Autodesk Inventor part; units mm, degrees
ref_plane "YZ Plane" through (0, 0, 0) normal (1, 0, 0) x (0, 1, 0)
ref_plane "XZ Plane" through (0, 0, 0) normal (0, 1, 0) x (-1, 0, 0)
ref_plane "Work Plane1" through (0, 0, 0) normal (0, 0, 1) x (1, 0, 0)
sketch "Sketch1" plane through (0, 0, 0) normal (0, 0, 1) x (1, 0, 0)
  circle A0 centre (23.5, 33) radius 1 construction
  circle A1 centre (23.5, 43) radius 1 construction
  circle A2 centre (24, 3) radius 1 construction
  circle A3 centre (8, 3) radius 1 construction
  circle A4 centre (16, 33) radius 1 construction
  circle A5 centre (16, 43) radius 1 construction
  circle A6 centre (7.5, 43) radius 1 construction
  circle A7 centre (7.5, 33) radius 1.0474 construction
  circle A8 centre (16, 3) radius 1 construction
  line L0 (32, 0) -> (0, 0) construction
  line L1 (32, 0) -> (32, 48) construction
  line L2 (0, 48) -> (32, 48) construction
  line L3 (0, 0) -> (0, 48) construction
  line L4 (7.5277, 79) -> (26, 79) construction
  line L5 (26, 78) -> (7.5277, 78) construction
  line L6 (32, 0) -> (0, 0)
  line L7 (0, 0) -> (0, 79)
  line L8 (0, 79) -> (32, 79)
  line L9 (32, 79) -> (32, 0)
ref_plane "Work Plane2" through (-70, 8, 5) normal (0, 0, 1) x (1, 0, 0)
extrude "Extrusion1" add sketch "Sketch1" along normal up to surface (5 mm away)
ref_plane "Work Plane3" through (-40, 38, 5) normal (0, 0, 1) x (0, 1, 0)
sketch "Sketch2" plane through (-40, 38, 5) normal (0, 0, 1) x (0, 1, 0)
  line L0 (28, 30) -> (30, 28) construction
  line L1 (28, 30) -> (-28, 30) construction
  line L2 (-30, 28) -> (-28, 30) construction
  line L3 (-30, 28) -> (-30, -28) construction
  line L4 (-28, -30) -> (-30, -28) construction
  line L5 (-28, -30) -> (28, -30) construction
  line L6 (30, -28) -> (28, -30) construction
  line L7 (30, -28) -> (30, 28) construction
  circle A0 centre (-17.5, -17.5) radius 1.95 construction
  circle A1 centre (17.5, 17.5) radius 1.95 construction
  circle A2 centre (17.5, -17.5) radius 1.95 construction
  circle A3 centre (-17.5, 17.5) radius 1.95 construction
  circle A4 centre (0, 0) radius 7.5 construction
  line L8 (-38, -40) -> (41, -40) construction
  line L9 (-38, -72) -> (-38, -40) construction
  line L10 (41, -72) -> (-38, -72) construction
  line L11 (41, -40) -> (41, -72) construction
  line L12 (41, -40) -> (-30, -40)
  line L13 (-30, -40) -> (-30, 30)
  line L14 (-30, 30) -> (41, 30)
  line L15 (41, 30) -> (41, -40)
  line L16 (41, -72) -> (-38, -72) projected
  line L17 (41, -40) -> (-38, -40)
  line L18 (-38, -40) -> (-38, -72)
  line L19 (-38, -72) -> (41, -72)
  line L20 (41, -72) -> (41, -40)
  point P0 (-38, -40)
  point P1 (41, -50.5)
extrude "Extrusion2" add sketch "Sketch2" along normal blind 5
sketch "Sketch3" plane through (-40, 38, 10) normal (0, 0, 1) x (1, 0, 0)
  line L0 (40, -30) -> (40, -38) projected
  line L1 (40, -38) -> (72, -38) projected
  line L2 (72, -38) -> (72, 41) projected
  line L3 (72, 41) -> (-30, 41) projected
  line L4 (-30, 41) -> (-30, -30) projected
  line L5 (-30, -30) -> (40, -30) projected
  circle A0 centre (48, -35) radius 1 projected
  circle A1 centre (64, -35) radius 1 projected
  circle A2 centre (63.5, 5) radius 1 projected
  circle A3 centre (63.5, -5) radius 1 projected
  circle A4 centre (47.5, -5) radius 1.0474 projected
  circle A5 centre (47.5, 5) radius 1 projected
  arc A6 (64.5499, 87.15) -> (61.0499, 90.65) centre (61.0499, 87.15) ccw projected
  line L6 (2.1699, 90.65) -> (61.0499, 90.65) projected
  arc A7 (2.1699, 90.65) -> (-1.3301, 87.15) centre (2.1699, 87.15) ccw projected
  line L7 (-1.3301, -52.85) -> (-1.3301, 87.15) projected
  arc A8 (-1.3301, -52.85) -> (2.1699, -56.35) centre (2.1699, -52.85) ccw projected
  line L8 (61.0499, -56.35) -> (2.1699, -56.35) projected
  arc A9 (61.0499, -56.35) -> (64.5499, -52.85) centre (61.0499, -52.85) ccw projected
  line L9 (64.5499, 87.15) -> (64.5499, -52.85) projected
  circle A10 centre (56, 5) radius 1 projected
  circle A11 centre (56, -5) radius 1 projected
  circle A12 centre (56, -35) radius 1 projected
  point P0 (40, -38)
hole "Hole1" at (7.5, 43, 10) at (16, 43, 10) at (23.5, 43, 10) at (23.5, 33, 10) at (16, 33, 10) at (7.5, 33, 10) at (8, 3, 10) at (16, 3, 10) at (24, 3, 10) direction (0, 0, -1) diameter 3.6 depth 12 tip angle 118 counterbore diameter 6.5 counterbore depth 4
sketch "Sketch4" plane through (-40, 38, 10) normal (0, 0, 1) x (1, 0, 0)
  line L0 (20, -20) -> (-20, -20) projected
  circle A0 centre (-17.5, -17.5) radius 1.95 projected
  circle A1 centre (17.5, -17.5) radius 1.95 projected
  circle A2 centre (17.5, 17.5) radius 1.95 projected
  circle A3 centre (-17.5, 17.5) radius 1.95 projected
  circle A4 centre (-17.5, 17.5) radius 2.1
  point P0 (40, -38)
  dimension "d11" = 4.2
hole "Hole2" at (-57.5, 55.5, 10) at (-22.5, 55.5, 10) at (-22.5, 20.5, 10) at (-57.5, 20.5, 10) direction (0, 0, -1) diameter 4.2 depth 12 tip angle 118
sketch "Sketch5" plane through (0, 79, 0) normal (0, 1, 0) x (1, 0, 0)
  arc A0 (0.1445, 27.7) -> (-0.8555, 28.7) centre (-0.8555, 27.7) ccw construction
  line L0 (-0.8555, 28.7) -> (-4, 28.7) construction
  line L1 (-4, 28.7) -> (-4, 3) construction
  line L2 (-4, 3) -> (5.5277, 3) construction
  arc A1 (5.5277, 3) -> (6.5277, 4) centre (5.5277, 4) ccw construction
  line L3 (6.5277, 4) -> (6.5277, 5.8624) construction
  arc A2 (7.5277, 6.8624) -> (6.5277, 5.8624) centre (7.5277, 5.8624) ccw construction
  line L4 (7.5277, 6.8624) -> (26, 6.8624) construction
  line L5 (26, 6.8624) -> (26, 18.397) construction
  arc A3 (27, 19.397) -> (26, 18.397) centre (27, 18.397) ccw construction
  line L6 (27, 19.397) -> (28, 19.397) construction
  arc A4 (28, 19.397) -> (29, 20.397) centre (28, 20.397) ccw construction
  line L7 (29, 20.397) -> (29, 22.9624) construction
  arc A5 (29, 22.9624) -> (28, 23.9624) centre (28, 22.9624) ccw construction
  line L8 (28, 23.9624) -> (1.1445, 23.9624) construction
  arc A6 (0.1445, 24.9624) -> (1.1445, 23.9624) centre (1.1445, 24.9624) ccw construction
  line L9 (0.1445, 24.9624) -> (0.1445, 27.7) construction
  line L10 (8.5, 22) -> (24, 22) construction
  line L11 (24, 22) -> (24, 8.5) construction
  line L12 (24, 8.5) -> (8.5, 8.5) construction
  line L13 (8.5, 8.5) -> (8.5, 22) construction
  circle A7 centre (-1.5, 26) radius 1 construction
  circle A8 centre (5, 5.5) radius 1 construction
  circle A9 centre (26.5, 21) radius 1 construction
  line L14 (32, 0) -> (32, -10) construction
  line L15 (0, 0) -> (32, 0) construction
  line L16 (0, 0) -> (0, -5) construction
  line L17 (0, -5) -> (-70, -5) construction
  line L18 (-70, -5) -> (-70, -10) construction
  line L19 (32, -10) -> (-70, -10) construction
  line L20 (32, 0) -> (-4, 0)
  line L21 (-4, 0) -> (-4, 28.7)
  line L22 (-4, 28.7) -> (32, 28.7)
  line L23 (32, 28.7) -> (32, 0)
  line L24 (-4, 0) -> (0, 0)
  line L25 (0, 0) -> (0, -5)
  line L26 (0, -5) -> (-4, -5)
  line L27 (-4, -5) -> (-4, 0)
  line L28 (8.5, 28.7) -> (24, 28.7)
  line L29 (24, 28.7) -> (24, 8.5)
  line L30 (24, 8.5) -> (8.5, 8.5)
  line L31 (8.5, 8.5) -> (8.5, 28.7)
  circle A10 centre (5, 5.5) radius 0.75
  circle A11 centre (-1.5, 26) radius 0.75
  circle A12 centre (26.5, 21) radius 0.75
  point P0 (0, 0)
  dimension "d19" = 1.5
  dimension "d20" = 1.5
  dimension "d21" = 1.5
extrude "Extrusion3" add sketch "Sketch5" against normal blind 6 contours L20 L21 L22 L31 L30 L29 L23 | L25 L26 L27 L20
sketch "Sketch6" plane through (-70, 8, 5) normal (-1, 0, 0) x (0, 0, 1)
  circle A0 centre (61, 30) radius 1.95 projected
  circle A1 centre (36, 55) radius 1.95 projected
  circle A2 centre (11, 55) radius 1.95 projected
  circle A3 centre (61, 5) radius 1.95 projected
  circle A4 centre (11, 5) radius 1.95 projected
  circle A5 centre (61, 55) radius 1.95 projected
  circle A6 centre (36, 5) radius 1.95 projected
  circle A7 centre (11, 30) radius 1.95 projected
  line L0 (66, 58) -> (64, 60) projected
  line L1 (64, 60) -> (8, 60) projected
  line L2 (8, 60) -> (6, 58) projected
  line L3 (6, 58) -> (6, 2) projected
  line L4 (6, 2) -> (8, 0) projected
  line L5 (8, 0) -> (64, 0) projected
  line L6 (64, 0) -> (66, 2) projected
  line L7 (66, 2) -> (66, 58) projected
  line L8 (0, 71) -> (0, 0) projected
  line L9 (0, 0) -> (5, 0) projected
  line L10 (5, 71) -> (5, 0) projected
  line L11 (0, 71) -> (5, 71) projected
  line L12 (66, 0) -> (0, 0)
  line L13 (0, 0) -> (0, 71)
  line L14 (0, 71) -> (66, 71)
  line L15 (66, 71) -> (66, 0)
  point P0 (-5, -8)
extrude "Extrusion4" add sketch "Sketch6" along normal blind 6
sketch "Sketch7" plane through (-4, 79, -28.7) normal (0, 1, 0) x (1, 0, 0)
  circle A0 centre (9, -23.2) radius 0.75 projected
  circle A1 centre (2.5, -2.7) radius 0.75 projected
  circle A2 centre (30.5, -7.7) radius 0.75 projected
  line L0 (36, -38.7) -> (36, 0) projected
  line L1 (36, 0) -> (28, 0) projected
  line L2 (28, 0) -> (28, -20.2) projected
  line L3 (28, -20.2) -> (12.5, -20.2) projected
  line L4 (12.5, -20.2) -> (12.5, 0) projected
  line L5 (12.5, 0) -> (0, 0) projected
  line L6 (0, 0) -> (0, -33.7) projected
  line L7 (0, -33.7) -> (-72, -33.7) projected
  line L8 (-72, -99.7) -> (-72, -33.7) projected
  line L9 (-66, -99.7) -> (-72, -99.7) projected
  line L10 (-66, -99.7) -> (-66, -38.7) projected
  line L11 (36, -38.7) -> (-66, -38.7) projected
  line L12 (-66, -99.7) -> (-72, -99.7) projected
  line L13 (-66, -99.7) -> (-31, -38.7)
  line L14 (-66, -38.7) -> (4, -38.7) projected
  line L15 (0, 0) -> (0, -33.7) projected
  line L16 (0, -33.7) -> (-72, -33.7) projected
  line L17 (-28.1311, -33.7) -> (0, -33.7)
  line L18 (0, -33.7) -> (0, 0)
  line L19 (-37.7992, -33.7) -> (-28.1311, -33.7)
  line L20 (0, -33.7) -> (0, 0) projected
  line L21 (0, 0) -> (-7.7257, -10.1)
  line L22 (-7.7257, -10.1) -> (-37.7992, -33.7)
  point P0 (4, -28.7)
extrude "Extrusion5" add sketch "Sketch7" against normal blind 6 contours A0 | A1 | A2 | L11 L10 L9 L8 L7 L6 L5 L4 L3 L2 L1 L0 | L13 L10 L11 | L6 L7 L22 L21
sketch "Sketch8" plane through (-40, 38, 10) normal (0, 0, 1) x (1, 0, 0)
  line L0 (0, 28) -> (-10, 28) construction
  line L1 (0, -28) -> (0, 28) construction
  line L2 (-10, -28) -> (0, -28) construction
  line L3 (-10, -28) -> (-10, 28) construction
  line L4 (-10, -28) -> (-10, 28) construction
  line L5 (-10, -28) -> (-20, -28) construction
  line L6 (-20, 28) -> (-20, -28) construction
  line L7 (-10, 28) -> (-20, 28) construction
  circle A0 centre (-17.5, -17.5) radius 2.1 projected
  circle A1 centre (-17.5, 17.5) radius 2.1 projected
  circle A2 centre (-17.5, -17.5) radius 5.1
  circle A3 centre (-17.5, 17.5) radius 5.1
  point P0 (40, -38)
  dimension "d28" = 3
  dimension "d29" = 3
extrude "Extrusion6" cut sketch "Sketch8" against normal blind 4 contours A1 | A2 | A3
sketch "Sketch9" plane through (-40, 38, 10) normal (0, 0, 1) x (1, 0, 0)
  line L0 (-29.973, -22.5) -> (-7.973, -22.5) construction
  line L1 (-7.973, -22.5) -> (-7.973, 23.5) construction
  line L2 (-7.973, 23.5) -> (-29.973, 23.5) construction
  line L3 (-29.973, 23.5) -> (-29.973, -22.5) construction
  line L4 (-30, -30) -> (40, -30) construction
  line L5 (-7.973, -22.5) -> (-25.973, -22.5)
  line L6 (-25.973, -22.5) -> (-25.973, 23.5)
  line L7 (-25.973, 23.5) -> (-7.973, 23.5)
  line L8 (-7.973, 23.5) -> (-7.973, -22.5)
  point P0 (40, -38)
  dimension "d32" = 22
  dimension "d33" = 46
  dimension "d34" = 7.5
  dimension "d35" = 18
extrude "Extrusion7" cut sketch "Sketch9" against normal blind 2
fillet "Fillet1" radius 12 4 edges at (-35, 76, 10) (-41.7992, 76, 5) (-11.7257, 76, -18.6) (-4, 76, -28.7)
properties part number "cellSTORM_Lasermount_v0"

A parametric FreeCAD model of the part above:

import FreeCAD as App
import Part
import Sketcher


def edges_at(feature, points):
    """Names of the edges that pass closest to the given points."""
    edges = feature.Shape.Edges
    near = lambda p: min(range(len(edges)), key=lambda i: edges[i].distToShape(Part.Vertex(*p))[0])
    return sorted({f"Edge{near(p) + 1}" for p in points})


def add_polygon(sketch, points):
    """Adds a closed chain of lines whose ends are joined by coincident constraints."""
    first, n = sketch.GeometryCount, len(points)
    for a, b in zip(points, points[1:] + points[:1]):
        sketch.addGeometry(Part.LineSegment(App.Vector(*a, 0), App.Vector(*b, 0)), False)
    for i in range(n):
        sketch.addConstraint(Sketcher.Constraint("Coincident", first + i, 2, first + (i + 1) % n, 1))

doc = App.newDocument("Part")
body = doc.addObject("PartDesign::Body", "Body")

# Sketch on XY plane
sketch1 = body.newObject("Sketcher::SketchObject", "Sketch")
sketch1.AttachmentSupport = (doc.getObject("XY_Plane"), [""])
sketch1.MapMode = "FlatFace"
add_polygon(sketch1, [(0, 0), (32, 0), (32, 79), (0, 79)])  # lines 0-3
sketch1.addConstraint(Sketcher.Constraint("Horizontal", 0))
sketch1.addConstraint(Sketcher.Constraint("Vertical", 1))
sketch1.addConstraint(Sketcher.Constraint("Horizontal", 2))
sketch1.addConstraint(Sketcher.Constraint("Vertical", 3))
sketch1.addConstraint(Sketcher.Constraint("Coincident", 3, 2, -1, 1))
sketch1.addConstraint(Sketcher.Constraint("DistanceX", 0, 1, 0, 2, 32.0))
sketch1.addConstraint(Sketcher.Constraint("DistanceY", 1, 1, 1, 2, 79.0))
pad1 = body.newObject("PartDesign::Pad", "Pad")
pad1.Profile = sketch1
pad1.Length = 5

# Sketch on XY plane
sketch2 = body.newObject("Sketcher::SketchObject", "Sketch001")
sketch2.AttachmentSupport = (doc.getObject("XY_Plane"), [""])
sketch2.MapMode = "FlatFace"
sketch2.AttachmentOffset = App.Placement(App.Vector(0, 0, 5), App.Rotation())
add_polygon(sketch2, [(32, 79), (-70, 79), (-70, 8), (0, 8), (0, 0), (32, 0)])  # lines 0-5
sketch2.addConstraint(Sketcher.Constraint("Horizontal", 0))
sketch2.addConstraint(Sketcher.Constraint("Vertical", 1))
sketch2.addConstraint(Sketcher.Constraint("Horizontal", 2))
sketch2.addConstraint(Sketcher.Constraint("Vertical", 3))
sketch2.addConstraint(Sketcher.Constraint("Horizontal", 4))
sketch2.addConstraint(Sketcher.Constraint("Vertical", 5))
sketch2.addConstraint(Sketcher.Constraint("Coincident", 3, 2, -1, 1))
sketch2.addConstraint(Sketcher.Constraint("DistanceX", 0, 2, 0, 1, 102.0))
sketch2.addConstraint(Sketcher.Constraint("DistanceX", 2, 1, 2, 2, 70.0))
sketch2.addConstraint(Sketcher.Constraint("DistanceY", 1, 2, 1, 1, 71.0))
sketch2.addConstraint(Sketcher.Constraint("DistanceY", 3, 2, 3, 1, 8.0))
pad2 = body.newObject("PartDesign::Pad", "Pad001")
pad2.Profile = sketch2
pad2.Length = 5

# Sketch on XY plane
sketch3 = body.newObject("Sketcher::SketchObject", "Sketch002")
sketch3.AttachmentSupport = (doc.getObject("XY_Plane"), [""])
sketch3.MapMode = "FlatFace"
sketch3.AttachmentOffset = App.Placement(App.Vector(0, 0, 10), App.Rotation())
sketch3.addGeometry(Part.Circle(App.Vector(7.5, 43, 0), App.Vector(0, 0, 1), 1.8), False)
sketch3.addGeometry(Part.Circle(App.Vector(16, 43, 0), App.Vector(0, 0, 1), 1.8), False)
sketch3.addGeometry(Part.Circle(App.Vector(23.5, 43, 0), App.Vector(0, 0, 1), 1.8), False)
sketch3.addGeometry(Part.Circle(App.Vector(23.5, 33, 0), App.Vector(0, 0, 1), 1.8), False)
sketch3.addGeometry(Part.Circle(App.Vector(16, 33, 0), App.Vector(0, 0, 1), 1.8), False)
sketch3.addGeometry(Part.Circle(App.Vector(7.5, 33, 0), App.Vector(0, 0, 1), 1.8), False)
sketch3.addGeometry(Part.Circle(App.Vector(8, 3, 0), App.Vector(0, 0, 1), 1.8), False)
sketch3.addGeometry(Part.Circle(App.Vector(16, 3, 0), App.Vector(0, 0, 1), 1.8), False)
sketch3.addGeometry(Part.Circle(App.Vector(24, 3, 0), App.Vector(0, 0, 1), 1.8), False)
sketch3.addConstraint(Sketcher.Constraint("Equal", 0, 1))
sketch3.addConstraint(Sketcher.Constraint("Equal", 1, 2))
sketch3.addConstraint(Sketcher.Constraint("Equal", 2, 3))
sketch3.addConstraint(Sketcher.Constraint("Equal", 3, 4))
sketch3.addConstraint(Sketcher.Constraint("Equal", 4, 5))
sketch3.addConstraint(Sketcher.Constraint("Equal", 5, 6))
sketch3.addConstraint(Sketcher.Constraint("Equal", 6, 7))
sketch3.addConstraint(Sketcher.Constraint("Equal", 7, 8))
sketch3.addConstraint(Sketcher.Constraint("Horizontal", 0, 3, 1, 3))
sketch3.addConstraint(Sketcher.Constraint("Horizontal", 1, 3, 2, 3))
sketch3.addConstraint(Sketcher.Constraint("Horizontal", 3, 3, 4, 3))
sketch3.addConstraint(Sketcher.Constraint("Horizontal", 4, 3, 5, 3))
sketch3.addConstraint(Sketcher.Constraint("Horizontal", 6, 3, 7, 3))
sketch3.addConstraint(Sketcher.Constraint("Horizontal", 7, 3, 8, 3))
sketch3.addConstraint(Sketcher.Constraint("Vertical", 2, 3, 3, 3))
sketch3.addConstraint(Sketcher.Constraint("Vertical", 1, 3, 4, 3))
sketch3.addConstraint(Sketcher.Constraint("Vertical", 0, 3, 5, 3))
sketch3.addConstraint(Sketcher.Constraint("Vertical", 4, 3, 7, 3))
sketch3.addConstraint(Sketcher.Constraint("Diameter", 0, 3.6))
sketch3.addConstraint(Sketcher.Constraint("DistanceY", -1, 1, 0, 3, 43.0))
sketch3.addConstraint(Sketcher.Constraint("DistanceX", -1, 1, 1, 3, 16.0))
sketch3.addConstraint(Sketcher.Constraint("DistanceY", -1, 1, 3, 3, 33.0))
sketch3.addConstraint(Sketcher.Constraint("DistanceX", -1, 1, 6, 3, 8.0))
sketch3.addConstraint(Sketcher.Constraint("DistanceY", -1, 1, 6, 3, 3.0))
sketch3.addConstraint(Sketcher.Constraint("DistanceX", -1, 1, 8, 3, 24.0))
sketch3.addConstraint(Sketcher.Constraint("DistanceX", 0, 3, 2, 3, 16.0))
sketch3.addConstraint(Sketcher.Constraint("DistanceX", -1, 1, 0, 3, 7.5))
doc.recompute()
hole = body.newObject("PartDesign::Hole", "Hole")
hole.Profile = sketch3
hole.ThreadType = "None"
hole.Diameter = 3.6
hole.DepthType = "Dimension"
hole.Depth = 12
hole.DrillPoint = "Angled"
hole.DrillPointAngle = 118
hole.HoleCutType = "Counterbore"
hole.HoleCutDiameter = 6.5
hole.HoleCutDepth = 4

# Sketch on XY plane
sketch4 = body.newObject("Sketcher::SketchObject", "Sketch003")
sketch4.AttachmentSupport = (doc.getObject("XY_Plane"), [""])
sketch4.MapMode = "FlatFace"
sketch4.AttachmentOffset = App.Placement(App.Vector(0, 0, 10), App.Rotation())
sketch4.addGeometry(Part.Circle(App.Vector(-57.5, 55.5, 0), App.Vector(0, 0, 1), 2.1), False)
sketch4.addGeometry(Part.Circle(App.Vector(-22.5, 55.5, 0), App.Vector(0, 0, 1), 2.1), False)
sketch4.addGeometry(Part.Circle(App.Vector(-22.5, 20.5, 0), App.Vector(0, 0, 1), 2.1), False)
sketch4.addGeometry(Part.Circle(App.Vector(-57.5, 20.5, 0), App.Vector(0, 0, 1), 2.1), False)
sketch4.addConstraint(Sketcher.Constraint("Equal", 0, 1))
sketch4.addConstraint(Sketcher.Constraint("Equal", 1, 2))
sketch4.addConstraint(Sketcher.Constraint("Equal", 2, 3))
sketch4.addConstraint(Sketcher.Constraint("Horizontal", 0, 3, 1, 3))
sketch4.addConstraint(Sketcher.Constraint("Horizontal", 2, 3, 3, 3))
sketch4.addConstraint(Sketcher.Constraint("Vertical", 1, 3, 2, 3))
sketch4.addConstraint(Sketcher.Constraint("Vertical", 0, 3, 3, 3))
sketch4.addConstraint(Sketcher.Constraint("Diameter", 0, 4.2))
sketch4.addConstraint(Sketcher.Constraint("DistanceX", 0, 3, 1, 3, 35.0))
sketch4.addConstraint(Sketcher.Constraint("DistanceY", 2, 3, 1, 3, 35.0))
sketch4.addConstraint(Sketcher.Constraint("DistanceX", 0, 3, -1, 1, 57.5))
sketch4.addConstraint(Sketcher.Constraint("DistanceY", -1, 1, 0, 3, 55.5))
doc.recompute()
hole2 = body.newObject("PartDesign::Hole", "Hole001")
hole2.Profile = sketch4
hole2.ThreadType = "None"
hole2.Diameter = 4.2
hole2.DepthType = "Dimension"
hole2.Depth = 12
hole2.DrillPoint = "Angled"
hole2.DrillPointAngle = 118

# Sketch on XZ plane
sketch5 = body.newObject("Sketcher::SketchObject", "Sketch004")
sketch5.AttachmentSupport = (doc.getObject("XZ_Plane"), [""])
sketch5.MapMode = "FlatFace"
sketch5.AttachmentOffset = App.Placement(App.Vector(0, 0, -79), App.Rotation())
add_polygon(sketch5, [(0, 0), (32, 0), (32, -28.7), (24, -28.7), (24, -8.5), (8.5, -8.5), (8.5, -28.7), (-4, -28.7), (-4, 5), (0, 5)])  # lines 0-9
sketch5.addGeometry(Part.Circle(App.Vector(5, -5.5, 0), App.Vector(0, 0, 1), 0.8), False)  # 10
sketch5.addGeometry(Part.Circle(App.Vector(-1.5, -26, 0), App.Vector(0, 0, 1), 0.8), False)  # 11
sketch5.addGeometry(Part.Circle(App.Vector(26.5, -21, 0), App.Vector(0, 0, 1), 0.8), False)  # 12
sketch5.addConstraint(Sketcher.Constraint("Horizontal", 0))
sketch5.addConstraint(Sketcher.Constraint("Vertical", 1))
sketch5.addConstraint(Sketcher.Constraint("Horizontal", 2))
sketch5.addConstraint(Sketcher.Constraint("Vertical", 3))
sketch5.addConstraint(Sketcher.Constraint("Horizontal", 4))
sketch5.addConstraint(Sketcher.Constraint("Vertical", 5))
sketch5.addConstraint(Sketcher.Constraint("Horizontal", 6))
sketch5.addConstraint(Sketcher.Constraint("Vertical", 7))
sketch5.addConstraint(Sketcher.Constraint("Horizontal", 8))
sketch5.addConstraint(Sketcher.Constraint("Vertical", 9))
sketch5.addConstraint(Sketcher.Constraint("Coincident", 9, 2, -1, 1))
sketch5.addConstraint(Sketcher.Constraint("Equal", 10, 11))
sketch5.addConstraint(Sketcher.Constraint("Equal", 11, 12))
sketch5.addConstraint(Sketcher.Constraint("Horizontal", 2, 2, 5, 2))
sketch5.addConstraint(Sketcher.Constraint("Diameter", 10, 1.5))
sketch5.addConstraint(Sketcher.Constraint("DistanceX", 11, 3, -1, 1, 1.5))
sketch5.addConstraint(Sketcher.Constraint("DistanceX", 0, 1, 0, 2, 32.0))
sketch5.addConstraint(Sketcher.Constraint("DistanceX", 2, 2, 2, 1, 8.0))
sketch5.addConstraint(Sketcher.Constraint("DistanceX", 8, 1, 8, 2, 4.0))
sketch5.addConstraint(Sketcher.Constraint("DistanceY", 9, 2, 9, 1, 5.0))
sketch5.addConstraint(Sketcher.Constraint("DistanceX", 4, 2, 4, 1, 15.5))
sketch5.addConstraint(Sketcher.Constraint("DistanceY", 1, 2, 1, 1, 28.7))
sketch5.addConstraint(Sketcher.Constraint("DistanceY", 3, 1, 3, 2, 20.2))
sketch5.addConstraint(Sketcher.Constraint("DistanceX", -1, 1, 10, 3, 5.0))
sketch5.addConstraint(Sketcher.Constraint("DistanceY", 11, 3, -1, 1, 26.0))
sketch5.addConstraint(Sketcher.Constraint("DistanceY", 12, 3, -1, 1, 21.0))
sketch5.addConstraint(Sketcher.Constraint("DistanceX", 11, 3, 12, 3, 28.0))
sketch5.addConstraint(Sketcher.Constraint("DistanceY", 3, 2, 10, 3, 3.0))
pad3 = body.newObject("PartDesign::Pad", "Pad002")
pad3.Profile = sketch5
pad3.Length = 6

# Sketch on YZ plane
sketch6 = body.newObject("Sketcher::SketchObject", "Sketch005")
sketch6.AttachmentSupport = (doc.getObject("YZ_Plane"), [""])
sketch6.MapMode = "FlatFace"
sketch6.AttachmentOffset = App.Placement(App.Vector(0, 0, -70), App.Rotation())
add_polygon(sketch6, [(79, 71), (79, 5), (8, 5), (8, 71)])  # lines 0-3
sketch6.addGeometry(Part.Circle(App.Vector(13, 16, 0), App.Vector(0, 0, 1), 1.9), False)  # 4
sketch6.addGeometry(Part.Circle(App.Vector(38, 16, 0), App.Vector(0, 0, 1), 1.9), False)  # 5
sketch6.addGeometry(Part.Circle(App.Vector(13, 41, 0), App.Vector(0, 0, 1), 1.9), False)  # 6
sketch6.addGeometry(Part.Circle(App.Vector(13, 66, 0), App.Vector(0, 0, 1), 1.9), False)  # 7
sketch6.addGeometry(Part.Circle(App.Vector(38, 66, 0), App.Vector(0, 0, 1), 1.9), False)  # 8
sketch6.addGeometry(Part.Circle(App.Vector(63, 16, 0), App.Vector(0, 0, 1), 1.9), False)  # 9
sketch6.addGeometry(Part.Circle(App.Vector(63, 41, 0), App.Vector(0, 0, 1), 1.9), False)  # 10
sketch6.addGeometry(Part.Circle(App.Vector(63, 66, 0), App.Vector(0, 0, 1), 1.9), False)  # 11
sketch6.addConstraint(Sketcher.Constraint("Vertical", 0))
sketch6.addConstraint(Sketcher.Constraint("Horizontal", 1))
sketch6.addConstraint(Sketcher.Constraint("Vertical", 2))
sketch6.addConstraint(Sketcher.Constraint("Horizontal", 3))
sketch6.addConstraint(Sketcher.Constraint("Equal", 4, 5))
sketch6.addConstraint(Sketcher.Constraint("Equal", 5, 6))
sketch6.addConstraint(Sketcher.Constraint("Equal", 6, 7))
sketch6.addConstraint(Sketcher.Constraint("Equal", 7, 8))
sketch6.addConstraint(Sketcher.Constraint("Equal", 8, 9))
sketch6.addConstraint(Sketcher.Constraint("Equal", 9, 10))
sketch6.addConstraint(Sketcher.Constraint("Equal", 10, 11))
sketch6.addConstraint(Sketcher.Constraint("Horizontal", 4, 3, 5, 3))
sketch6.addConstraint(Sketcher.Constraint("Horizontal", 7, 3, 8, 3))
sketch6.addConstraint(Sketcher.Constraint("Horizontal", 5, 3, 9, 3))
sketch6.addConstraint(Sketcher.Constraint("Horizontal", 6, 3, 10, 3))
sketch6.addConstraint(Sketcher.Constraint("Horizontal", 8, 3, 11, 3))
sketch6.addConstraint(Sketcher.Constraint("Vertical", 4, 3, 6, 3))
sketch6.addConstraint(Sketcher.Constraint("Vertical", 6, 3, 7, 3))
sketch6.addConstraint(Sketcher.Constraint("Vertical", 5, 3, 8, 3))
sketch6.addConstraint(Sketcher.Constraint("Vertical", 9, 3, 10, 3))
sketch6.addConstraint(Sketcher.Constraint("Vertical", 10, 3, 11, 3))
sketch6.addConstraint(Sketcher.Constraint("Diameter", 4, 3.9))
sketch6.addConstraint(Sketcher.Constraint("DistanceX", 1, 2, 1, 1, 71.0))
sketch6.addConstraint(Sketcher.Constraint("DistanceY", 0, 2, 0, 1, 66.0))
sketch6.addConstraint(Sketcher.Constraint("DistanceX", -1, 1, 4, 3, 13.0))
sketch6.addConstraint(Sketcher.Constraint("DistanceY", -1, 1, 4, 3, 16.0))
sketch6.addConstraint(Sketcher.Constraint("DistanceX", -1, 1, 5, 3, 38.0))
sketch6.addConstraint(Sketcher.Constraint("DistanceY", -1, 1, 6, 3, 41.0))
sketch6.addConstraint(Sketcher.Constraint("DistanceY", -1, 1, 7, 3, 66.0))
sketch6.addConstraint(Sketcher.Constraint("DistanceX", -1, 1, 9, 3, 63.0))
sketch6.addConstraint(Sketcher.Constraint("DistanceX", -1, 1, 0, 2, 79.0))
sketch6.addConstraint(Sketcher.Constraint("DistanceY", -1, 1, 0, 2, 5.0))
pad4 = body.newObject("PartDesign::Pad", "Pad003")
pad4.Profile = sketch6
pad4.Length = 6
pad4.Reversed = True

# Sketch on XZ plane
sketch7 = body.newObject("Sketcher::SketchObject", "Sketch006")
sketch7.AttachmentSupport = (doc.getObject("XZ_Plane"), [""])
sketch7.MapMode = "FlatFace"
sketch7.AttachmentOffset = App.Placement(App.Vector(0, 0, -79), App.Rotation())
add_polygon(sketch7, [(32, 10), (32, -29), (24, -29), (24, -8), (8, -8), (8, -29), (-4, -29), (-12, -19), (-42, 5), (-76, 5), (-76, 71), (-70, 71), (-35, 10)])  # lines 0-12
sketch7.addConstraint(Sketcher.Constraint("Vertical", 0))
sketch7.addConstraint(Sketcher.Constraint("Horizontal", 1))
sketch7.addConstraint(Sketcher.Constraint("Vertical", 2))
sketch7.addConstraint(Sketcher.Constraint("Horizontal", 3))
sketch7.addConstraint(Sketcher.Constraint("Vertical", 4))
sketch7.addConstraint(Sketcher.Constraint("Horizontal", 5))
sketch7.addConstraint(Sketcher.Constraint("Horizontal", 8))
sketch7.addConstraint(Sketcher.Constraint("Vertical", 9))
sketch7.addConstraint(Sketcher.Constraint("Horizontal", 10))
sketch7.addConstraint(Sketcher.Constraint("Horizontal", 12))
sketch7.addConstraint(Sketcher.Constraint("Horizontal", 1, 2, 4, 2))
sketch7.addConstraint(Sketcher.Constraint("DistanceX", 1, 2, 1, 1, 8.0))
sketch7.addConstraint(Sketcher.Constraint("DistanceX", 10, 1, 10, 2, 6.0))
sketch7.addConstraint(Sketcher.Constraint("DistanceX", 12, 1, 12, 2, 67.0))
sketch7.addConstraint(Sketcher.Constraint("DistanceY", 9, 1, 9, 2, 66.0))
sketch7.addConstraint(Sketcher.Constraint("DistanceX", 3, 2, 3, 1, 15.5))
sketch7.addConstraint(Sketcher.Constraint("DistanceX", 5, 2, 5, 1, 12.5))
sketch7.addConstraint(Sketcher.Constraint("DistanceY", 0, 2, 0, 1, 38.7))
sketch7.addConstraint(Sketcher.Constraint("DistanceY", 2, 1, 2, 2, 20.2))
sketch7.addConstraint(Sketcher.Constraint("DistanceX", -1, 1, 0, 2, 32.0))
sketch7.addConstraint(Sketcher.Constraint("DistanceY", -1, 1, 7, 2, 5.0))
sketch7.addConstraint(Sketcher.Constraint("DistanceX", 8, 2, -1, 1, 76.0))
sketch7.addConstraint(Sketcher.Constraint("DistanceY", -1, 1, 11, 2, 10.0))
sketch7.addConstraint(Sketcher.Constraint("DistanceY", 6, 2, -1, 1, 18.6))
sketch7.addConstraint(Sketcher.Constraint("Distance", 6, 12.716))
sketch7.addConstraint(Sketcher.Constraint("Distance", 7, 38.228))
pad5 = body.newObject("PartDesign::Pad", "Pad004")
pad5.Profile = sketch7
pad5.Length = 6

# Sketch on XY plane
sketch8 = body.newObject("Sketcher::SketchObject", "Sketch007")
sketch8.AttachmentSupport = (doc.getObject("XY_Plane"), [""])
sketch8.MapMode = "FlatFace"
sketch8.AttachmentOffset = App.Placement(App.Vector(0, 0, 10), App.Rotation())
sketch8.addGeometry(Part.Circle(App.Vector(-57.5, 55.5, 0), App.Vector(0, 0, 1), 5.1), False)
sketch8.addGeometry(Part.Circle(App.Vector(-57.5, 20.5, 0), App.Vector(0, 0, 1), 5.1), False)
sketch8.addGeometry(Part.Circle(App.Vector(-57.5, 20.5, 0), App.Vector(0, 0, 1), 2.1), False)
sketch8.addConstraint(Sketcher.Constraint("Coincident", 2, 3, 1, 3))
sketch8.addConstraint(Sketcher.Constraint("Equal", 0, 1))
sketch8.addConstraint(Sketcher.Constraint("Vertical", 0, 3, 1, 3))
sketch8.addConstraint(Sketcher.Constraint("Diameter", 0, 10.2))
sketch8.addConstraint(Sketcher.Constraint("Diameter", 2, 4.2))
sketch8.addConstraint(Sketcher.Constraint("DistanceY", 1, 3, 0, 3, 35.0))
sketch8.addConstraint(Sketcher.Constraint("DistanceX", 0, 3, -1, 1, 57.5))
sketch8.addConstraint(Sketcher.Constraint("DistanceY", -1, 1, 0, 3, 55.5))
pocket1 = body.newObject("PartDesign::Pocket", "Pocket")
pocket1.Profile = sketch8
pocket1.Length = 4

# Sketch on XY plane
sketch9 = body.newObject("Sketcher::SketchObject", "Sketch008")
sketch9.AttachmentSupport = (doc.getObject("XY_Plane"), [""])
sketch9.MapMode = "FlatFace"
sketch9.AttachmentOffset = App.Placement(App.Vector(0, 0, 10), App.Rotation())
add_polygon(sketch9, [(-66, 16), (-48, 16), (-48, 62), (-66, 62)])  # lines 0-3
sketch9.addConstraint(Sketcher.Constraint("Horizontal", 0))
sketch9.addConstraint(Sketcher.Constraint("Vertical", 1))
sketch9.addConstraint(Sketcher.Constraint("Horizontal", 2))
sketch9.addConstraint(Sketcher.Constraint("Vertical", 3))
sketch9.addConstraint(Sketcher.Constraint("DistanceX", 0, 1, 0, 2, 18.0))
sketch9.addConstraint(Sketcher.Constraint("DistanceY", 1, 1, 1, 2, 46.0))
sketch9.addConstraint(Sketcher.Constraint("DistanceY", -1, 1, 0, 2, 15.5))
sketch9.addConstraint(Sketcher.Constraint("DistanceX", 0, 2, -1, 1, 47.973))
pocket2 = body.newObject("PartDesign::Pocket", "Pocket001")
pocket2.Profile = sketch9
pocket2.Length = 2
doc.recompute()

fillet = body.newObject("PartDesign::Fillet", "Fillet")
fillet.Base = (pocket2, edges_at(pocket2, [
    (-35, 76, 10),
    (-41.799, 76, 5),
    (-11.726, 76, -18.6),
    (-4, 76, -28.7),
]))
fillet.Radius = 12

doc.recompute()
